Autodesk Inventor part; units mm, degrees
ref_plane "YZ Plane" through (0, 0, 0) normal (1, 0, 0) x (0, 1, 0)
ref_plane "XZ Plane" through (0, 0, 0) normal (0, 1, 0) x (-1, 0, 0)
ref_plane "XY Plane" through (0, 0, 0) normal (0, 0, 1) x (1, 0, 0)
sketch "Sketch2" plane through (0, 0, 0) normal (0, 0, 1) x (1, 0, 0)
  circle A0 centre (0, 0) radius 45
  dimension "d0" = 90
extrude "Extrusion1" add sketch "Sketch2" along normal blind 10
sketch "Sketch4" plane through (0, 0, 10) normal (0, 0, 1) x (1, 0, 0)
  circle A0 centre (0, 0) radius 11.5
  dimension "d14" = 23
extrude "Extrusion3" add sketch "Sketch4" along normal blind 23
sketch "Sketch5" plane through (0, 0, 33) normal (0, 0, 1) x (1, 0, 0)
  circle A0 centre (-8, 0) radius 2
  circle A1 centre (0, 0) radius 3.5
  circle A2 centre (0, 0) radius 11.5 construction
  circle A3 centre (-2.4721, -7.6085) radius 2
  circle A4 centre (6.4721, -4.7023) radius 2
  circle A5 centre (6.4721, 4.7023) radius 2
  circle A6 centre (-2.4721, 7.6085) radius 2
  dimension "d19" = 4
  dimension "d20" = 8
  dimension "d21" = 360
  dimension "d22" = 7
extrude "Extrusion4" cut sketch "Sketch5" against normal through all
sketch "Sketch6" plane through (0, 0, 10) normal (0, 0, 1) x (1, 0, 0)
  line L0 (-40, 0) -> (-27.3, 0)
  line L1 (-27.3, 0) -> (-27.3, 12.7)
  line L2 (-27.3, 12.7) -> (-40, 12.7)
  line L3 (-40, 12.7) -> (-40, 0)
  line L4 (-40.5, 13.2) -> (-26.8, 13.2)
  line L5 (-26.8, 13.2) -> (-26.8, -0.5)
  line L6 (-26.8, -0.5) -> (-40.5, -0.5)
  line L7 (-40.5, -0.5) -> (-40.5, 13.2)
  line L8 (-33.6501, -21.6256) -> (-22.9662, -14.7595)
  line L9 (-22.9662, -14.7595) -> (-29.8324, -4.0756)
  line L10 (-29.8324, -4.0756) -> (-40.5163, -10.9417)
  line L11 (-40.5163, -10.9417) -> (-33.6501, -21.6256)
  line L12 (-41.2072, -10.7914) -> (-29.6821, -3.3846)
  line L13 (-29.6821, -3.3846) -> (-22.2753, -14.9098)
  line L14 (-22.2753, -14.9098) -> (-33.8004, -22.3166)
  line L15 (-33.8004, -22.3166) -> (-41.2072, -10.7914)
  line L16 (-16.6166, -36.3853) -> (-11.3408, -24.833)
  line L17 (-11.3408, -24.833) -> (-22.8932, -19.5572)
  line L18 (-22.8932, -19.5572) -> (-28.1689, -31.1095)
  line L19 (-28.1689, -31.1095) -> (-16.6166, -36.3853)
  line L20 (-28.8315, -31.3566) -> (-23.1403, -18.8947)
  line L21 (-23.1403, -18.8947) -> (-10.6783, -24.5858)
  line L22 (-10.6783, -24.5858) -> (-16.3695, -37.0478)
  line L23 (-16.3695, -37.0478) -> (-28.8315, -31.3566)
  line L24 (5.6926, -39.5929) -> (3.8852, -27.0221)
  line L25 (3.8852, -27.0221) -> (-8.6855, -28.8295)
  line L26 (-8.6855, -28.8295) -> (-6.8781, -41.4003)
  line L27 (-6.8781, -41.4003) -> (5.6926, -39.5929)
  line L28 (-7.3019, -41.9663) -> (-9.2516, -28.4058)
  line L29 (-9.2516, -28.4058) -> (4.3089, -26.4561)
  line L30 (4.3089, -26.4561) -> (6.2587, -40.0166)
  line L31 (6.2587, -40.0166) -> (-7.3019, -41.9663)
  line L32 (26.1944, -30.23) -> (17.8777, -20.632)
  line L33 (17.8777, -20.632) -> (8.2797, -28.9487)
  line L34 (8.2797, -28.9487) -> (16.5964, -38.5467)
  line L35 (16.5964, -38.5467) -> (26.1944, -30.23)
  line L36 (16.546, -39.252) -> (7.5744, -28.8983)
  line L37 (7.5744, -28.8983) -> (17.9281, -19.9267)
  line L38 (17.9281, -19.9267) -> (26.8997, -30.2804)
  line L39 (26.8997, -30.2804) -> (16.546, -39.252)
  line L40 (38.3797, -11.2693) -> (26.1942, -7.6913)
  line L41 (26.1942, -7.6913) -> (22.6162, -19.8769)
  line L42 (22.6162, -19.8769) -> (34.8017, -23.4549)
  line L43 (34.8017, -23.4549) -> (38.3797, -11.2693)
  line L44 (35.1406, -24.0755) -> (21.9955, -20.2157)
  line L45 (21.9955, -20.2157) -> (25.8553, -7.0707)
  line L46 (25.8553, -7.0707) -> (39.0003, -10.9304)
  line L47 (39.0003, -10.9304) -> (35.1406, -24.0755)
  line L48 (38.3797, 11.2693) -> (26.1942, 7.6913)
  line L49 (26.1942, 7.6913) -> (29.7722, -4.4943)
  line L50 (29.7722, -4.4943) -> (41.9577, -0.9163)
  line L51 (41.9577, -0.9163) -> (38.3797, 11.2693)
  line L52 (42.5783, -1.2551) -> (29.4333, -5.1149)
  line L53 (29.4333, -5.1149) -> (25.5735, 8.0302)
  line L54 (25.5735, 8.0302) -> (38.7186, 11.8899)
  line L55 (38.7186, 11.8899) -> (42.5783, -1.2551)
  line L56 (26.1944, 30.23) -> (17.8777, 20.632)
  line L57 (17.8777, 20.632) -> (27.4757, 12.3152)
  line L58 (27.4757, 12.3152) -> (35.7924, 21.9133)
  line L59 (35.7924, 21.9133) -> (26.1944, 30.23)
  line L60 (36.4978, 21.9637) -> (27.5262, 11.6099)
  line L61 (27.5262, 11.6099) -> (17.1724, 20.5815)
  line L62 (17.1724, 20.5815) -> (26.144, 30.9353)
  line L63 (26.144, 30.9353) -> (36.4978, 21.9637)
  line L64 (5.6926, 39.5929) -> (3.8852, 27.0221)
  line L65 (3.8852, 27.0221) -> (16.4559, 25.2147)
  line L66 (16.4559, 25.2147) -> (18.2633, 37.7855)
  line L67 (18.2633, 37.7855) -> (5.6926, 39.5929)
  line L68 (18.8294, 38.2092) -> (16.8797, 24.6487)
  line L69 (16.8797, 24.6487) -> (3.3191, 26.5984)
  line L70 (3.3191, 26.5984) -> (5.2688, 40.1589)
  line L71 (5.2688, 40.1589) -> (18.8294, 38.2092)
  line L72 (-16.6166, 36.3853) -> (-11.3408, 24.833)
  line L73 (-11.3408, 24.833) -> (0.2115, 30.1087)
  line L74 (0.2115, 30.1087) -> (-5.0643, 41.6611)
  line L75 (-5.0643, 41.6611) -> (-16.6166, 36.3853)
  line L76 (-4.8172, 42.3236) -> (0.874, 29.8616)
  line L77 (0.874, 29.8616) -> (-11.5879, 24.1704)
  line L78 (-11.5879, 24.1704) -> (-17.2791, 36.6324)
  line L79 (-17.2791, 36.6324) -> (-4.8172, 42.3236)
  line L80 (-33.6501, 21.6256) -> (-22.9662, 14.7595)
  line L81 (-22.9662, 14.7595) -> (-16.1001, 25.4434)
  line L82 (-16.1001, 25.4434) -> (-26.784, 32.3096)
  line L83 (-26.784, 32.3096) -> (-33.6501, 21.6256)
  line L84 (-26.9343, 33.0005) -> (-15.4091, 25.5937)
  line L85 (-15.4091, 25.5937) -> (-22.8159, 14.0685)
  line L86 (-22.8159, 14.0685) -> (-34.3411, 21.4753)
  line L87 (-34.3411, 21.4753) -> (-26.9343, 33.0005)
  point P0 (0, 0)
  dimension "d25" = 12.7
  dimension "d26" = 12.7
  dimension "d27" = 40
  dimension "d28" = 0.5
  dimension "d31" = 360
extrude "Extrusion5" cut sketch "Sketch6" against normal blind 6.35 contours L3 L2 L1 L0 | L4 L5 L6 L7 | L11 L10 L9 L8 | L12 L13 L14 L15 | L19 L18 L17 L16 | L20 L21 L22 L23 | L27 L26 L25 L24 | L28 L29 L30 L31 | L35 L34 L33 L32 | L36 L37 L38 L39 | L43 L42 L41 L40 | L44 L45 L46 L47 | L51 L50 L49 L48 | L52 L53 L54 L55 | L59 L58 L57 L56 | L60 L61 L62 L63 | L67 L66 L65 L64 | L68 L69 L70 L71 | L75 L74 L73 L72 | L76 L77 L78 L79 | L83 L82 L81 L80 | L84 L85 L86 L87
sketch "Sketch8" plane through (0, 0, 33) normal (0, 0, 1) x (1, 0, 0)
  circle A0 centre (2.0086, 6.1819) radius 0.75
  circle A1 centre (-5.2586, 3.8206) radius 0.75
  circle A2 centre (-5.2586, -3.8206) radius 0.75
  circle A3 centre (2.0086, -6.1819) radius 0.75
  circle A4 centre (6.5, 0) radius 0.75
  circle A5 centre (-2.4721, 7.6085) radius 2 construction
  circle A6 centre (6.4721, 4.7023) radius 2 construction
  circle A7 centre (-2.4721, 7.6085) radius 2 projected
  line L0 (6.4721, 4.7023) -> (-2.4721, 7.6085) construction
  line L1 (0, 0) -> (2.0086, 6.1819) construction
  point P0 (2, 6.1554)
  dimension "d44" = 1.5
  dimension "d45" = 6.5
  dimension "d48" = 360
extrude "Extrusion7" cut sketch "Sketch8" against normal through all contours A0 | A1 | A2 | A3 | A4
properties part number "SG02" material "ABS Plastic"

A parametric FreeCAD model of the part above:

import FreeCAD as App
import Part
import Sketcher
Q = App.Units.Quantity

doc = App.newDocument("Part")
params = doc.addObject("Spreadsheet::Sheet", "Params")
for row, (alias, value) in enumerate([
    ("sketch1_diameter", "90 mm"),
    ("pad1_length", "10 mm"),
    ("sketch2_diameter", "23 mm"),
    ("pad2_length", "23 mm"),
    ("sketch3_diameter", "4 mm"),
    ("sketch3_diameter2", "7 mm"),
    ("sketch4_width", "13.7 mm"),
    ("sketch4_length", "13.7 mm"),
    ("pocket2_length", "6.35 mm"),
    ("sketch5_diameter", "1.5 mm"),
], start=1):
    params.set(f"A{row}", alias)
    params.set(f"B{row}", "=" + value)
    params.setAlias(f"B{row}", alias)

body = doc.addObject("PartDesign::Body", "Body")

sketch1 = doc.addObject("Sketcher::SketchObject", "Sketch")
body.addObject(sketch1)
sketch1.AttachmentSupport = (doc.XY_Plane, [""])
sketch1.MapMode = "FlatFace"
sketch1.addGeometry(Part.Circle(App.Vector(0, 0, 0), App.Vector(0, 0, 1), 45), False)
sketch1.addConstraint([
    Sketcher.Constraint("Coincident", 0, 3, -1, 1),
    Sketcher.Constraint("Diameter", 0, 90.0),
])
sketch1.setExpression("Constraints[1]", "Params.sketch1_diameter")
pad1 = doc.addObject("PartDesign::Pad", "Pad")
body.addObject(pad1)
pad1.Profile = sketch1
pad1.setExpression("Length", "Params.pad1_length")

sketch2 = doc.addObject("Sketcher::SketchObject", "Sketch001")
body.addObject(sketch2)
sketch2.AttachmentSupport = (doc.XY_Plane, [""])
sketch2.MapMode = "FlatFace"
sketch2.AttachmentOffset = App.Placement(App.Vector(0, 0, 10), App.Rotation())
sketch2.addGeometry(Part.Circle(App.Vector(0, 0, 0), App.Vector(0, 0, 1), 11.5), False)
sketch2.addConstraint([
    Sketcher.Constraint("Coincident", 0, 3, -1, 1),
    Sketcher.Constraint("Diameter", 0, 23.0),
])
sketch2.setExpression("Constraints[1]", "Params.sketch2_diameter")
pad2 = doc.addObject("PartDesign::Pad", "Pad001")
body.addObject(pad2)
pad2.Profile = sketch2
pad2.setExpression("Length", "Params.pad2_length")

sketch3 = doc.addObject("Sketcher::SketchObject", "Sketch002")
body.addObject(sketch3)
sketch3.AttachmentSupport = (doc.XY_Plane, [""])
sketch3.MapMode = "FlatFace"
sketch3.AttachmentOffset = App.Placement(App.Vector(0, 0, 33), App.Rotation())
sketch3.addGeometry([
    Part.Circle(App.Vector(-8, 0, 0), App.Vector(0, 0, 1), 2),
    Part.Circle(App.Vector(0, 0, 0), App.Vector(0, 0, 1), 3.5),
    Part.Circle(App.Vector(-2.4721, -7.6085, 0), App.Vector(0, 0, 1), 2),
    Part.Circle(App.Vector(6.4721, -4.7023, 0), App.Vector(0, 0, 1), 2),
    Part.Circle(App.Vector(6.4721, 4.7023, 0), App.Vector(0, 0, 1), 2),
    Part.Circle(App.Vector(-2.4721, 7.6085, 0), App.Vector(0, 0, 1), 2),
], False)
sketch3.addConstraint([
    Sketcher.Constraint("Coincident", 1, 3, -1, 1),
    Sketcher.Constraint("Equal", 0, 2),
    Sketcher.Constraint("Equal", 2, 3),
    Sketcher.Constraint("Equal", 3, 4),
    Sketcher.Constraint("Equal", 4, 5),
    Sketcher.Constraint("Symmetric", 3, 3, 4, 3, -1),
    Sketcher.Constraint("Symmetric", 2, 3, 5, 3, -1),
    Sketcher.Constraint("PointOnObject", 0, 3, -1),
    Sketcher.Constraint("Diameter", 0, 4.0),
    Sketcher.Constraint("Diameter", 1, 7.0),
    Sketcher.Constraint("DistanceX", 0, 3, -1, 1, 8.0),
    Sketcher.Constraint("DistanceX", 2, 3, -1, 1, 2.472),
    Sketcher.Constraint("DistanceX", -1, 1, 3, 3, 6.472),
    Sketcher.Constraint("DistanceY", 2, 3, 5, 3, 15.217),
    Sketcher.Constraint("DistanceY", 3, 3, -1, 1, 4.7023),
])
sketch3.setExpression("Constraints[8]", "Params.sketch3_diameter")
sketch3.setExpression("Constraints[9]", "Params.sketch3_diameter2")
pocket1 = doc.addObject("PartDesign::Pocket", "Pocket")
body.addObject(pocket1)
pocket1.Profile = sketch3
pocket1.Type = "ThroughAll"

sketch4 = doc.addObject("Sketcher::SketchObject", "Sketch003")
body.addObject(sketch4)
sketch4.AttachmentSupport = (doc.XY_Plane, [""])
sketch4.MapMode = "FlatFace"
sketch4.AttachmentOffset = App.Placement(App.Vector(0, 0, 10), App.Rotation())
sketch4.addGeometry([
    Part.LineSegment(App.Vector(-26.8, 13.2, 0), App.Vector(-40.5, 13.2, 0)),
    Part.LineSegment(App.Vector(-40.5, 13.2, 0), App.Vector(-40.5, -0.5, 0)),
    Part.LineSegment(App.Vector(-40.5, -0.5, 0), App.Vector(-26.8, -0.5, 0)),
    Part.LineSegment(App.Vector(-26.8, -0.5, 0), App.Vector(-26.8, 13.2, 0)),
    Part.LineSegment(App.Vector(-29.6821, -3.3846, 0), App.Vector(-41.2072, -10.7914, 0)),
    Part.LineSegment(App.Vector(-41.2072, -10.7914, 0), App.Vector(-33.8004, -22.3166, 0)),
    Part.LineSegment(App.Vector(-33.8004, -22.3166, 0), App.Vector(-22.2753, -14.9098, 0)),
    Part.LineSegment(App.Vector(-22.2753, -14.9098, 0), App.Vector(-29.6821, -3.3846, 0)),
    Part.LineSegment(App.Vector(-23.1403, -18.8947, 0), App.Vector(-28.8315, -31.3566, 0)),
    Part.LineSegment(App.Vector(-28.8315, -31.3566, 0), App.Vector(-16.3695, -37.0478, 0)),
    Part.LineSegment(App.Vector(-16.3695, -37.0478, 0), App.Vector(-10.6783, -24.5858, 0)),
    Part.LineSegment(App.Vector(-10.6783, -24.5858, 0), App.Vector(-23.1403, -18.8947, 0)),
    Part.LineSegment(App.Vector(-9.2516, -28.4058, 0), App.Vector(-7.3019, -41.9663, 0)),
    Part.LineSegment(App.Vector(-7.3019, -41.9663, 0), App.Vector(6.2587, -40.0166, 0)),
    Part.LineSegment(App.Vector(6.2587, -40.0166, 0), App.Vector(4.3089, -26.4561, 0)),
    Part.LineSegment(App.Vector(4.3089, -26.4561, 0), App.Vector(-9.2516, -28.4058, 0)),
    Part.LineSegment(App.Vector(7.5744, -28.8983, 0), App.Vector(16.546, -39.252, 0)),
    Part.LineSegment(App.Vector(16.546, -39.252, 0), App.Vector(26.8997, -30.2804, 0)),
    Part.LineSegment(App.Vector(26.8997, -30.2804, 0), App.Vector(17.9281, -19.9267, 0)),
    Part.LineSegment(App.Vector(17.9281, -19.9267, 0), App.Vector(7.5744, -28.8983, 0)),
    Part.LineSegment(App.Vector(21.9955, -20.2157, 0), App.Vector(35.1406, -24.0755, 0)),
    Part.LineSegment(App.Vector(35.1406, -24.0755, 0), App.Vector(39.0003, -10.9304, 0)),
    Part.LineSegment(App.Vector(39.0003, -10.9304, 0), App.Vector(25.8553, -7.0707, 0)),
    Part.LineSegment(App.Vector(25.8553, -7.0707, 0), App.Vector(21.9955, -20.2157, 0)),
    Part.LineSegment(App.Vector(29.4333, -5.1149, 0), App.Vector(42.5783, -1.2551, 0)),
    Part.LineSegment(App.Vector(42.5783, -1.2551, 0), App.Vector(38.7186, 11.8899, 0)),
    Part.LineSegment(App.Vector(38.7186, 11.8899, 0), App.Vector(25.5735, 8.0302, 0)),
    Part.LineSegment(App.Vector(25.5735, 8.0302, 0), App.Vector(29.4333, -5.1149, 0)),
    Part.LineSegment(App.Vector(27.5262, 11.6099, 0), App.Vector(36.4978, 21.9637, 0)),
    Part.LineSegment(App.Vector(36.4978, 21.9637, 0), App.Vector(26.144, 30.9353, 0)),
    Part.LineSegment(App.Vector(26.144, 30.9353, 0), App.Vector(17.1724, 20.5815, 0)),
    Part.LineSegment(App.Vector(17.1724, 20.5815, 0), App.Vector(27.5262, 11.6099, 0)),
    Part.LineSegment(App.Vector(16.8797, 24.6487, 0), App.Vector(18.8294, 38.2092, 0)),
    Part.LineSegment(App.Vector(18.8294, 38.2092, 0), App.Vector(5.2688, 40.1589, 0)),
    Part.LineSegment(App.Vector(5.2688, 40.1589, 0), App.Vector(3.3191, 26.5984, 0)),
    Part.LineSegment(App.Vector(3.3191, 26.5984, 0), App.Vector(16.8797, 24.6487, 0)),
    Part.LineSegment(App.Vector(0.874, 29.8616, 0), App.Vector(-4.8172, 42.3236, 0)),
    Part.LineSegment(App.Vector(-4.8172, 42.3236, 0), App.Vector(-17.2791, 36.6324, 0)),
    Part.LineSegment(App.Vector(-17.2791, 36.6324, 0), App.Vector(-11.5879, 24.1704, 0)),
    Part.LineSegment(App.Vector(-11.5879, 24.1704, 0), App.Vector(0.874, 29.8616, 0)),
    Part.LineSegment(App.Vector(-15.4091, 25.5937, 0), App.Vector(-26.9343, 33.0005, 0)),
    Part.LineSegment(App.Vector(-26.9343, 33.0005, 0), App.Vector(-34.3411, 21.4753, 0)),
    Part.LineSegment(App.Vector(-34.3411, 21.4753, 0), App.Vector(-22.8159, 14.0685, 0)),
    Part.LineSegment(App.Vector(-22.8159, 14.0685, 0), App.Vector(-15.4091, 25.5937, 0)),
], False)
sketch4.addConstraint([
    Sketcher.Constraint("Coincident", 0, 2, 1, 1),
    Sketcher.Constraint("Coincident", 1, 2, 2, 1),
    Sketcher.Constraint("Coincident", 2, 2, 3, 1),
    Sketcher.Constraint("Coincident", 3, 2, 0, 1),
    Sketcher.Constraint("Coincident", 4, 2, 5, 1),
    Sketcher.Constraint("Coincident", 5, 2, 6, 1),
    Sketcher.Constraint("Coincident", 6, 2, 7, 1),
    Sketcher.Constraint("Coincident", 7, 2, 4, 1),
    Sketcher.Constraint("Coincident", 8, 2, 9, 1),
    Sketcher.Constraint("Coincident", 9, 2, 10, 1),
    Sketcher.Constraint("Coincident", 10, 2, 11, 1),
    Sketcher.Constraint("Coincident", 11, 2, 8, 1),
    Sketcher.Constraint("Coincident", 12, 2, 13, 1),
    Sketcher.Constraint("Coincident", 13, 2, 14, 1),
    Sketcher.Constraint("Coincident", 14, 2, 15, 1),
    Sketcher.Constraint("Coincident", 15, 2, 12, 1),
    Sketcher.Constraint("Coincident", 16, 2, 17, 1),
    Sketcher.Constraint("Coincident", 17, 2, 18, 1),
    Sketcher.Constraint("Coincident", 18, 2, 19, 1),
    Sketcher.Constraint("Coincident", 19, 2, 16, 1),
    Sketcher.Constraint("Coincident", 20, 2, 21, 1),
    Sketcher.Constraint("Coincident", 21, 2, 22, 1),
    Sketcher.Constraint("Coincident", 22, 2, 23, 1),
    Sketcher.Constraint("Coincident", 23, 2, 20, 1),
    Sketcher.Constraint("Coincident", 24, 2, 25, 1),
    Sketcher.Constraint("Coincident", 25, 2, 26, 1),
    Sketcher.Constraint("Coincident", 26, 2, 27, 1),
    Sketcher.Constraint("Coincident", 27, 2, 24, 1),
    Sketcher.Constraint("Coincident", 28, 2, 29, 1),
    Sketcher.Constraint("Coincident", 29, 2, 30, 1),
    Sketcher.Constraint("Coincident", 30, 2, 31, 1),
    Sketcher.Constraint("Coincident", 31, 2, 28, 1),
    Sketcher.Constraint("Coincident", 32, 2, 33, 1),
    Sketcher.Constraint("Coincident", 33, 2, 34, 1),
    Sketcher.Constraint("Coincident", 34, 2, 35, 1),
    Sketcher.Constraint("Coincident", 35, 2, 32, 1),
    Sketcher.Constraint("Coincident", 36, 2, 37, 1),
    Sketcher.Constraint("Coincident", 37, 2, 38, 1),
    Sketcher.Constraint("Coincident", 38, 2, 39, 1),
    Sketcher.Constraint("Coincident", 39, 2, 36, 1),
    Sketcher.Constraint("Coincident", 40, 2, 41, 1),
    Sketcher.Constraint("Coincident", 41, 2, 42, 1),
    Sketcher.Constraint("Coincident", 42, 2, 43, 1),
    Sketcher.Constraint("Coincident", 43, 2, 40, 1),
    Sketcher.Constraint("Horizontal", 0),
    Sketcher.Constraint("Vertical", 1),
    Sketcher.Constraint("Horizontal", 2),
    Sketcher.Constraint("Vertical", 3),
    Sketcher.Constraint("Perpendicular", 4, 5),
    Sketcher.Constraint("Perpendicular", 5, 6),
    Sketcher.Constraint("Perpendicular", 6, 7),
    Sketcher.Constraint("Perpendicular", 8, 9),
    Sketcher.Constraint("Perpendicular", 9, 10),
    Sketcher.Constraint("Perpendicular", 10, 11),
    Sketcher.Constraint("Perpendicular", 12, 13),
    Sketcher.Constraint("Perpendicular", 13, 14),
    Sketcher.Constraint("Perpendicular", 14, 15),
    Sketcher.Constraint("Perpendicular", 16, 17),
    Sketcher.Constraint("Perpendicular", 17, 18),
    Sketcher.Constraint("Perpendicular", 18, 19),
    Sketcher.Constraint("Perpendicular", 20, 21),
    Sketcher.Constraint("Perpendicular", 21, 22),
    Sketcher.Constraint("Perpendicular", 22, 23),
    Sketcher.Constraint("Perpendicular", 24, 25),
    Sketcher.Constraint("Perpendicular", 25, 26),
    Sketcher.Constraint("Perpendicular", 26, 27),
    Sketcher.Constraint("Perpendicular", 28, 29),
    Sketcher.Constraint("Perpendicular", 29, 30),
    Sketcher.Constraint("Perpendicular", 30, 31),
    Sketcher.Constraint("Perpendicular", 32, 33),
    Sketcher.Constraint("Perpendicular", 33, 34),
    Sketcher.Constraint("Perpendicular", 34, 35),
    Sketcher.Constraint("Perpendicular", 36, 37),
    Sketcher.Constraint("Perpendicular", 37, 38),
    Sketcher.Constraint("Perpendicular", 38, 39),
    Sketcher.Constraint("Perpendicular", 40, 41),
    Sketcher.Constraint("Perpendicular", 41, 42),
    Sketcher.Constraint("Perpendicular", 42, 43),
    Sketcher.Constraint("Equal", 2, 1),
    Sketcher.Constraint("Equal", 4, 5),
    Sketcher.Constraint("Equal", 7, 8),
    Sketcher.Constraint("Equal", 8, 9),
    Sketcher.Constraint("Equal", 11, 12),
    Sketcher.Constraint("Equal", 12, 13),
    Sketcher.Constraint("Equal", 15, 16),
    Sketcher.Constraint("Equal", 16, 17),
    Sketcher.Constraint("Equal", 19, 20),
    Sketcher.Constraint("Equal", 20, 21),
    Sketcher.Constraint("Equal", 23, 24),
    Sketcher.Constraint("Equal", 24, 25),
    Sketcher.Constraint("Equal", 27, 28),
    Sketcher.Constraint("Equal", 28, 29),
    Sketcher.Constraint("Equal", 31, 32),
    Sketcher.Constraint("Equal", 32, 33),
    Sketcher.Constraint("Equal", 35, 36),
    Sketcher.Constraint("Equal", 36, 37),
    Sketcher.Constraint("Equal", 39, 40),
    Sketcher.Constraint("Equal", 40, 41),
    Sketcher.Constraint("DistanceY", 1, 2, -1, 1, 0.5),
    Sketcher.Constraint("DistanceX", 0, 2, 0, 1, 13.7),
    Sketcher.Constraint("Distance", 4, 13.7),
    Sketcher.Constraint("DistanceX", 0, 2, -1, 1, 40.5),
    Sketcher.Constraint("Angle", 16, Q("-49.0907 deg")),
    Sketcher.Constraint("Angle", 28, Q("49.091 deg")),
    Sketcher.Constraint("DistanceY", -1, 1, 25, 2, 11.89),
    Sketcher.Constraint("DistanceY", -1, 1, 31, 2, 11.61),
    Sketcher.Constraint("DistanceY", 8, 2, 5, 2, 9.04),
    Sketcher.Constraint("DistanceX", 5, 2, 11, 2, 10.66),
    Sketcher.Constraint("DistanceY", 11, 2, 7, 2, 15.51),
    Sketcher.Constraint("DistanceY", 13, 2, 8, 2, 8.66),
    Sketcher.Constraint("DistanceY", 15, 2, 10, 2, 3.82),
    Sketcher.Constraint("DistanceY", 13, 2, 18, 2, 20.09),
    Sketcher.Constraint("DistanceY", 17, 2, 21, 2, 19.35),
    Sketcher.Constraint("DistanceY", 38, 2, 40, 2, 8.83),
    Sketcher.Constraint("DistanceX", 37, 2, 43, 2, 1.87),
    Sketcher.Constraint("DistanceX", 7, 2, -1, 1, 29.682),
    Sketcher.Constraint("DistanceX", 12, 2, -1, 1, 7.302),
    Sketcher.Constraint("DistanceX", -1, 1, 14, 2, 4.309),
    Sketcher.Constraint("DistanceY", 14, 2, -1, 1, 26.456),
    Sketcher.Constraint("DistanceX", -1, 1, 16, 2, 16.546),
    Sketcher.Constraint("DistanceY", 24, 2, -1, 1, 1.255),
    Sketcher.Constraint("DistanceX", -1, 1, 29, 2, 26.144),
    Sketcher.Constraint("DistanceY", -1, 1, 33, 2, 40.159),
    Sketcher.Constraint("DistanceX", -1, 1, 34, 2, 3.319),
    Sketcher.Constraint("DistanceX", 37, 2, -1, 1, 17.279),
    Sketcher.Constraint("DistanceX", 38, 2, -1, 1, 11.588),
    Sketcher.Constraint("DistanceX", 41, 2, -1, 1, 34.341),
    Sketcher.Constraint("DistanceX", 17, 2, 20, 2, 8.241),
    Sketcher.Constraint("DistanceY", 17, 2, 20, 2, 6.205),
    Sketcher.Constraint("DistanceX", 21, 2, 24, 2, 3.578),
    Sketcher.Constraint("DistanceY", 29, 2, 32, 2, 7.274),
    Sketcher.Constraint("DistanceY", 35, 2, 36, 2, 17.675),
])
sketch4.setExpression("Constraints[99]", "Params.sketch4_width")
sketch4.setExpression("Constraints[100]", "Params.sketch4_length")
pocket2 = doc.addObject("PartDesign::Pocket", "Pocket001")
body.addObject(pocket2)
pocket2.Profile = sketch4
pocket2.setExpression("Length", "Params.pocket2_length")

sketch5 = doc.addObject("Sketcher::SketchObject", "Sketch004")
body.addObject(sketch5)
sketch5.AttachmentSupport = (doc.XY_Plane, [""])
sketch5.MapMode = "FlatFace"
sketch5.AttachmentOffset = App.Placement(App.Vector(0, 0, 33), App.Rotation())
sketch5.addGeometry([
    Part.Circle(App.Vector(2.0086, 6.1819, 0), App.Vector(0, 0, 1), 0.75),
    Part.Circle(App.Vector(-5.2586, 3.8206, 0), App.Vector(0, 0, 1), 0.75),
    Part.Circle(App.Vector(-5.2586, -3.8206, 0), App.Vector(0, 0, 1), 0.75),
    Part.Circle(App.Vector(2.0086, -6.1819, 0), App.Vector(0, 0, 1), 0.75),
    Part.Circle(App.Vector(6.5, 0, 0), App.Vector(0, 0, 1), 0.75),
], False)
sketch5.addConstraint([
    Sketcher.Constraint("Equal", 0, 1),
    Sketcher.Constraint("Equal", 1, 2),
    Sketcher.Constraint("Equal", 2, 3),
    Sketcher.Constraint("Equal", 3, 4),
    Sketcher.Constraint("Symmetric", 1, 3, 2, 3, -1),
    Sketcher.Constraint("Symmetric", 0, 3, 3, 3, -1),
    Sketcher.Constraint("PointOnObject", 4, 3, -1),
    Sketcher.Constraint("Diameter", 0, 1.5),
    Sketcher.Constraint("DistanceX", -1, 1, 4, 3, 6.5),
    Sketcher.Constraint("DistanceY", -1, 1, 0, 3, 6.182),
    Sketcher.Constraint("DistanceX", -1, 1, 0, 3, 2.0086),
    Sketcher.Constraint("DistanceX", 1, 3, -1, 1, 5.2586),
    Sketcher.Constraint("DistanceY", -1, 1, 1, 3, 3.8206),
])
sketch5.setExpression("Constraints[7]", "Params.sketch5_diameter")
pocket3 = doc.addObject("PartDesign::Pocket", "Pocket002")
body.addObject(pocket3)
pocket3.Profile = sketch5
pocket3.Type = "ThroughAll"

doc.recompute()
